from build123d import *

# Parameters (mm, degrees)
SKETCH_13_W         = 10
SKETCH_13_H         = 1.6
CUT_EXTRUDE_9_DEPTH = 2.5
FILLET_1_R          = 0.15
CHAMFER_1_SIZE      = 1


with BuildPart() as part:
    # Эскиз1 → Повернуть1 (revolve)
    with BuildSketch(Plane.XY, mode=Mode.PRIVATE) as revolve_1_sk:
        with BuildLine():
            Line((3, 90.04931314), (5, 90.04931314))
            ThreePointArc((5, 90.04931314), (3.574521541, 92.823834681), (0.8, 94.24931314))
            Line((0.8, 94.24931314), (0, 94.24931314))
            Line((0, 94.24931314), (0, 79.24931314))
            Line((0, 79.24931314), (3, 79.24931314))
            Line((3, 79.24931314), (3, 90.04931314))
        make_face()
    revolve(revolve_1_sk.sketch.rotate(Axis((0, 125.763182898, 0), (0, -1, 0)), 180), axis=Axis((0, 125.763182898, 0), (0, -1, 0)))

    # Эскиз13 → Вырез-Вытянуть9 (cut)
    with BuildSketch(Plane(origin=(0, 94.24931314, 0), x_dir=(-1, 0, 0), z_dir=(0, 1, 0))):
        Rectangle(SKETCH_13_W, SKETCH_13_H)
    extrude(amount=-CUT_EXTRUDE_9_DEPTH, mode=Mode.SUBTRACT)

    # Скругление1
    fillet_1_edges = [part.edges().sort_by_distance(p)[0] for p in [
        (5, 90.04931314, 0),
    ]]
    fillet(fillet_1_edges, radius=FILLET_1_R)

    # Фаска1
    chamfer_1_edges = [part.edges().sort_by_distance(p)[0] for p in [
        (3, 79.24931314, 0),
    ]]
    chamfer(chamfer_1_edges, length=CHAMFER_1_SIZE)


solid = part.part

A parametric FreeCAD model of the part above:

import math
import FreeCAD as App
import Part
import Sketcher

V = App.Vector


def edges_at(feature, points):
    """Names of the edges that pass closest to the given points."""
    edges = feature.Shape.Edges
    near = lambda p: min(range(len(edges)), key=lambda i: edges[i].distToShape(Part.Vertex(*p))[0])
    return sorted({f"Edge{near(p) + 1}" for p in points})


def add_polygon(sketch, points):
    """Adds a closed chain of lines whose ends are joined by coincident constraints."""
    first, n = sketch.GeometryCount, len(points)
    for a, b in zip(points, points[1:] + points[:1]):
        sketch.addGeometry(Part.LineSegment(App.Vector(*a, 0), App.Vector(*b, 0)), False)
    for i in range(n):
        sketch.addConstraint(Sketcher.Constraint("Coincident", first + i, 2, first + (i + 1) % n, 1))

doc = App.newDocument("Part")
body = doc.addObject("PartDesign::Body", "Body")

# Sketch on XY plane
sketch1 = doc.addObject("Sketcher::SketchObject", "Sketch")
body.addObject(sketch1)
sketch1.AttachmentSupport = (doc.XY_Plane, [""])
sketch1.MapMode = "FlatFace"
sketch1.addGeometry([
    Part.LineSegment(V(3, 90, 0), V(5, 90, 0)),  # 0
    Part.ArcOfCircle(Part.Circle(V(0, 89.2, 0), V(0, 0, 1), 5.1), math.radians(9), math.radians(81)),  # 1
    Part.LineSegment(V(0.8, 94.2, 0), V(0, 94.2, 0)),  # 2
    Part.LineSegment(V(0, 94.2, 0), V(0, 79.2, 0)),  # 3
    Part.LineSegment(V(0, 79.2, 0), V(3, 79.2, 0)),  # 4
    Part.LineSegment(V(3, 79.2, 0), V(3, 90, 0)),  # 5
], False)
sketch1.addConstraint([
    Sketcher.Constraint("Coincident", 0, 2, 1, 1),
    Sketcher.Constraint("Coincident", 1, 2, 2, 1),
    Sketcher.Constraint("Coincident", 2, 2, 3, 1),
    Sketcher.Constraint("Coincident", 3, 2, 4, 1),
    Sketcher.Constraint("Coincident", 4, 2, 5, 1),
    Sketcher.Constraint("Coincident", 5, 2, 0, 1),
    Sketcher.Constraint("Horizontal", 0),
    Sketcher.Constraint("Horizontal", 2),
    Sketcher.Constraint("Vertical", 3),
    Sketcher.Constraint("Horizontal", 4),
    Sketcher.Constraint("Vertical", 5),
    Sketcher.Constraint("PointOnObject", 2, 2, -2),
    Sketcher.Constraint("Radius", 1, 5.1),
    Sketcher.Constraint("DistanceX", 0, 1, 0, 2, 2.0),
    Sketcher.Constraint("DistanceX", 4, 1, 4, 2, 3.0),
    Sketcher.Constraint("DistanceY", 3, 2, 3, 1, 15.0),
    Sketcher.Constraint("DistanceX", 2, 2, 2, 1, 0.8),
    Sketcher.Constraint("DistanceY", 5, 1, 5, 2, 10.8),
    Sketcher.Constraint("DistanceY", -1, 1, 1, 3, 89.21759),
])
revolution = doc.addObject("PartDesign::Revolution", "Revolution")
body.addObject(revolution)
revolution.Profile = sketch1
revolution.ReferenceAxis = (sketch1, ["V_Axis"])
revolution.Angle = 360

# Sketch on XZ plane
sketch2 = doc.addObject("Sketcher::SketchObject", "Sketch001")
body.addObject(sketch2)
sketch2.AttachmentSupport = (doc.XZ_Plane, [""])
sketch2.MapMode = "FlatFace"
sketch2.AttachmentOffset = App.Placement(V(0, 0, -94.249313), App.Rotation())
add_polygon(sketch2, [(5, 0.8), (5, -0.8), (-5, -0.8), (-5, 0.8)])  # lines 0-3
sketch2.addConstraint([
    Sketcher.Constraint("Vertical", 0),
    Sketcher.Constraint("Horizontal", 1),
    Sketcher.Constraint("Vertical", 2),
    Sketcher.Constraint("Horizontal", 3),
    Sketcher.Constraint("Symmetric", 0, 2, 2, 2, -1, 1),
    Sketcher.Constraint("DistanceX", 1, 2, 1, 1, 10.0),
    Sketcher.Constraint("DistanceY", 0, 2, 0, 1, 1.6),
])
pocket1 = doc.addObject("PartDesign::Pocket", "Pocket")
body.addObject(pocket1)
pocket1.Profile = sketch2
pocket1.Length = 2.5
pocket1.Reversed = True
doc.recompute()

fillet = doc.addObject("PartDesign::Fillet", "Fillet")
body.addObject(fillet)
fillet.Base = (pocket1, edges_at(pocket1, [(5, 90.049, 0)]))
fillet.Radius = 0.15
doc.recompute()

chamfer = doc.addObject("PartDesign::Chamfer", "Chamfer")
body.addObject(chamfer)
chamfer.Base = (fillet, edges_at(fillet, [(3, 79.249, 0)]))
chamfer.Size = 1

doc.recompute()
